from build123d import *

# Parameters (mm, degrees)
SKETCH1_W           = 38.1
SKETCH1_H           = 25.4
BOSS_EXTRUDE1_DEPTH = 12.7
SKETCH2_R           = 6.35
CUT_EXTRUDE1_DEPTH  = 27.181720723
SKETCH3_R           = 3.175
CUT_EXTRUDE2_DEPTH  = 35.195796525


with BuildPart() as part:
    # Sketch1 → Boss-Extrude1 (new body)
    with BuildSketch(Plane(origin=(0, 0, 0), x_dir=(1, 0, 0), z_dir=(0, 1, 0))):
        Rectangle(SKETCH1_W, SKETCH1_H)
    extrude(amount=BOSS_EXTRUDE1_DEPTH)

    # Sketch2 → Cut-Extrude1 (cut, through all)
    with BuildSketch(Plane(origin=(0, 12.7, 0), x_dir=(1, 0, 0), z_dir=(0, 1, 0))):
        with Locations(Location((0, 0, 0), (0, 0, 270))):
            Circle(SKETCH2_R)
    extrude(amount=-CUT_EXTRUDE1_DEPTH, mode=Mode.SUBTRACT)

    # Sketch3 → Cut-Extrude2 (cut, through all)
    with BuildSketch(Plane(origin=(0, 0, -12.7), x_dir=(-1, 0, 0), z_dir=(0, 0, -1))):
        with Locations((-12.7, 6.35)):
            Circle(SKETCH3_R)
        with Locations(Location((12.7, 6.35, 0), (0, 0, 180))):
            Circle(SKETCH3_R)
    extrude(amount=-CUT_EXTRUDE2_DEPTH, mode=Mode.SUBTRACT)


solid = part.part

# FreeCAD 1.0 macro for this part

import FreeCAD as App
import Part
import Sketcher
from FreeCAD import Vector
Q = App.Units.Quantity

doc = App.newDocument("Part")
body = doc.addObject("PartDesign::Body", "Body")

sketch1 = body.newObject("Sketcher::SketchObject", "Sketch")
sketch1.AttachmentSupport = (doc.getObject("XZ_Plane"), [""])
sketch1.MapMode = "FlatFace"
sketch1.addGeometry([
    Part.LineSegment(Vector(-19, -13, 0), Vector(-19, 13, 0)),
    Part.LineSegment(Vector(-19, 13, 0), Vector(19, 13, 0)),
    Part.LineSegment(Vector(19, 13, 0), Vector(19, -13, 0)),
    Part.LineSegment(Vector(19, -13, 0), Vector(-19, -13, 0)),
], False)
sketch1.addConstraint([
    Sketcher.Constraint("Coincident", 0, 2, 1, 1),
    Sketcher.Constraint("Coincident", 1, 2, 2, 1),
    Sketcher.Constraint("Coincident", 2, 2, 3, 1),
    Sketcher.Constraint("Coincident", 3, 2, 0, 1),
    Sketcher.Constraint("Vertical", 0),
    Sketcher.Constraint("Horizontal", 1),
    Sketcher.Constraint("Vertical", 2),
    Sketcher.Constraint("Horizontal", 3),
    Sketcher.Constraint("Symmetric", 0, 2, 2, 2, -1, 1),
    Sketcher.Constraint("DistanceY", 0, 1, 0, 2, Q("1 in")),
    Sketcher.Constraint("DistanceX", 1, 1, 1, 2, Q("1.5 in")),
])
pad1 = body.newObject("PartDesign::Pad", "Pad")
pad1.Profile = sketch1
pad1.Length = Q("0.5 in")
pad1.Reversed = True

sketch2 = body.newObject("Sketcher::SketchObject", "Sketch001")
sketch2.AttachmentSupport = (doc.getObject("XZ_Plane"), [""])
sketch2.MapMode = "FlatFace"
sketch2.AttachmentOffset = App.Placement(Vector(0, 0, -0.5 * 25.4), App.Rotation())
sketch2.addGeometry(Part.Circle(Vector(0, 0, 0), Vector(0, 0, 1), 6), False)
sketch2.addConstraint([
    Sketcher.Constraint("Coincident", 0, 3, -1, 1),
    Sketcher.Constraint("Diameter", 0, Q("0.5 in")),
])
pocket1 = body.newObject("PartDesign::Pocket", "Pocket")
pocket1.Profile = sketch2
pocket1.Type = "ThroughAll"
pocket1.Reversed = True

sketch3 = body.newObject("Sketcher::SketchObject", "Sketch002")
sketch3.AttachmentSupport = (doc.getObject("XY_Plane"), [""])
sketch3.MapMode = "FlatFace"
sketch3.AttachmentOffset = App.Placement(Vector(0, 0, -0.5 * 25.4), App.Rotation())
sketch3.addGeometry([
    Part.Circle(Vector(12.7, 6.3, 0), Vector(0, 0, 1), 3.2),
    Part.Circle(Vector(-12.7, 6.3, 0), Vector(0, 0, 1), 3.2),
], False)
sketch3.addConstraint([
    Sketcher.Constraint("Equal", 0, 1),
    Sketcher.Constraint("Symmetric", 0, 3, 1, 3, -2),
    Sketcher.Constraint("Diameter", 0, Q("0.25 in")),
    Sketcher.Constraint("DistanceX", 1, 3, 0, 3, Q("1 in")),
    Sketcher.Constraint("DistanceY", -1, 1, 0, 3, Q("0.25 in")),
])
pocket2 = body.newObject("PartDesign::Pocket", "Pocket001")
pocket2.Profile = sketch3
pocket2.Type = "ThroughAll"
pocket2.Reversed = True

doc.recompute()
